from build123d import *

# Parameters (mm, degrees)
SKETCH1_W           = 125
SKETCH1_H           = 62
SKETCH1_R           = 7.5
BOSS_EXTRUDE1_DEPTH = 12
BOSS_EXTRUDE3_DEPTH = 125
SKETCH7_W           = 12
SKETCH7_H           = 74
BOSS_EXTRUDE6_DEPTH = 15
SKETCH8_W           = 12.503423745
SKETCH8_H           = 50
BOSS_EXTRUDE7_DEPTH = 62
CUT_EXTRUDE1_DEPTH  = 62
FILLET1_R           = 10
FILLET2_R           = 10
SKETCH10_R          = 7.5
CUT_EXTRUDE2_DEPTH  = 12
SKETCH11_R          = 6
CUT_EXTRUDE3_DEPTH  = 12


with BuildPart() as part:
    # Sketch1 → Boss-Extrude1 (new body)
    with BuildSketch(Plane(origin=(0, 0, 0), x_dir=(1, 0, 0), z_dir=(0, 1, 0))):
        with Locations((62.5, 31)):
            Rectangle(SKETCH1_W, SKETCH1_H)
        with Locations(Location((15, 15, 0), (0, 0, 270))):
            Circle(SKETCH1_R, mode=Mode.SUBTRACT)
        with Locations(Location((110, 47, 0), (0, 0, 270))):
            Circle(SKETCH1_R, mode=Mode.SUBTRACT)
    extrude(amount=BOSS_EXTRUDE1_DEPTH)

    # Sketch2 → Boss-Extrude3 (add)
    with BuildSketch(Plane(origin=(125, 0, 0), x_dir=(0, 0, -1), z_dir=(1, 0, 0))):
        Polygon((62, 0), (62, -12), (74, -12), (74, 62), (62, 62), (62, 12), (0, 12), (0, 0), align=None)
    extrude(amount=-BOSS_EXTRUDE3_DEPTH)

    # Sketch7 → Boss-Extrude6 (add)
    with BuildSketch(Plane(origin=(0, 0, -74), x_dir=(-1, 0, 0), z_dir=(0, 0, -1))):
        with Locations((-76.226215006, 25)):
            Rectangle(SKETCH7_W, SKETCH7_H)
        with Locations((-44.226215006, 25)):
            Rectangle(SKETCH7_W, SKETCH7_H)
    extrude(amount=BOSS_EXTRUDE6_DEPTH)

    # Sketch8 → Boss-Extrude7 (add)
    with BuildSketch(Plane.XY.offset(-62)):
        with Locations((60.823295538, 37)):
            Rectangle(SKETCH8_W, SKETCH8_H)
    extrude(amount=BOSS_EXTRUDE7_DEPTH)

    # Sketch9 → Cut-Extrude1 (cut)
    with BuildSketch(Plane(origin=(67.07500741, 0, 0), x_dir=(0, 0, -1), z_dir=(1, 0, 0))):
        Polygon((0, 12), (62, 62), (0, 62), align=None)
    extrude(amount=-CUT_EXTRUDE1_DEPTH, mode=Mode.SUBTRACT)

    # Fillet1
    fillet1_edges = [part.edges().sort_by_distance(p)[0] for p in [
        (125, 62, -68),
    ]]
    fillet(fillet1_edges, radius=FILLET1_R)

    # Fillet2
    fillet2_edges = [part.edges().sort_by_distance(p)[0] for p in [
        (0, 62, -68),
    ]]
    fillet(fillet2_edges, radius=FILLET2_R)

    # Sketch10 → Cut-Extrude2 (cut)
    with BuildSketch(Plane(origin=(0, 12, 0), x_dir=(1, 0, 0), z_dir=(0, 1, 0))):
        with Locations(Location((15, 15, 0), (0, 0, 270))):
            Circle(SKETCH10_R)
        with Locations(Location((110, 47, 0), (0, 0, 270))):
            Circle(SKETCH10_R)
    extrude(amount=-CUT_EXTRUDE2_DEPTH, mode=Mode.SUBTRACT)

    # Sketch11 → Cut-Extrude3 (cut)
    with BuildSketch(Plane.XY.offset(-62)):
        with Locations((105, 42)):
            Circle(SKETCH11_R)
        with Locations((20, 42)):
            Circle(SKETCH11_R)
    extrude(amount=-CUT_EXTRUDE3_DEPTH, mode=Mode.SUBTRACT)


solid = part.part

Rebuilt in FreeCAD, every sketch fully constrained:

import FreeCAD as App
import Part
import Sketcher


def edges_at(feature, points):
    """Names of the edges that pass closest to the given points."""
    edges = feature.Shape.Edges
    near = lambda p: min(range(len(edges)), key=lambda i: edges[i].distToShape(Part.Vertex(*p))[0])
    return sorted({f"Edge{near(p) + 1}" for p in points})


def add_polygon(sketch, points):
    """Adds a closed chain of lines whose ends are joined by coincident constraints."""
    first, n = sketch.GeometryCount, len(points)
    for a, b in zip(points, points[1:] + points[:1]):
        sketch.addGeometry(Part.LineSegment(App.Vector(*a, 0), App.Vector(*b, 0)), False)
    for i in range(n):
        sketch.addConstraint(Sketcher.Constraint("Coincident", first + i, 2, first + (i + 1) % n, 1))

doc = App.newDocument("Part")
body = doc.addObject("PartDesign::Body", "Body")

sketch1 = body.newObject("Sketcher::SketchObject", "Sketch")
sketch1.AttachmentSupport = (doc.getObject("XZ_Plane"), [""])
sketch1.MapMode = "FlatFace"
add_polygon(sketch1, [(0, -62), (0, 0), (125, 0), (125, -62)])
sketch1.addGeometry(Part.Circle(App.Vector(15, -15, 0), App.Vector(0, 0, 1), 8), False)
sketch1.addGeometry(Part.Circle(App.Vector(110, -47, 0), App.Vector(0, 0, 1), 8), False)
sketch1.addConstraint([
    Sketcher.Constraint("Vertical", 0),
    Sketcher.Constraint("Horizontal", 1),
    Sketcher.Constraint("Vertical", 2),
    Sketcher.Constraint("Horizontal", 3),
    Sketcher.Constraint("Coincident", 0, 2, -1, 1),
    Sketcher.Constraint("Equal", 4, 5),
    Sketcher.Constraint("Diameter", 4, 15.0),
    Sketcher.Constraint("DistanceX", 1, 1, 1, 2, 125.0),
    Sketcher.Constraint("DistanceY", 0, 1, 0, 2, 62.0),
    Sketcher.Constraint("DistanceX", -1, 1, 4, 3, 15.0),
    Sketcher.Constraint("DistanceY", 4, 3, -1, 1, 15.0),
    Sketcher.Constraint("DistanceX", -1, 1, 5, 3, 110.0),
    Sketcher.Constraint("DistanceY", 5, 3, -1, 1, 47.0),
])
pad1 = body.newObject("PartDesign::Pad", "Pad")
pad1.Profile = sketch1
pad1.Length = 12
pad1.Reversed = True

sketch2 = body.newObject("Sketcher::SketchObject", "Sketch001")
sketch2.AttachmentSupport = (doc.getObject("YZ_Plane"), [""])
sketch2.MapMode = "FlatFace"
sketch2.AttachmentOffset = App.Placement(App.Vector(0, 0, 125), App.Rotation())
add_polygon(sketch2, [(0, -62), (-12, -62), (-12, -74), (62, -74), (62, -62), (12, -62), (12, 0), (0, 0)])
sketch2.addConstraint([
    Sketcher.Constraint("Horizontal", 0),
    Sketcher.Constraint("Vertical", 1),
    Sketcher.Constraint("Horizontal", 2),
    Sketcher.Constraint("Vertical", 3),
    Sketcher.Constraint("Horizontal", 4),
    Sketcher.Constraint("Vertical", 5),
    Sketcher.Constraint("Horizontal", 6),
    Sketcher.Constraint("Vertical", 7),
    Sketcher.Constraint("Coincident", 6, 2, -1, 1),
    Sketcher.Constraint("Symmetric", 0, 2, 4, 2, -2),
    Sketcher.Constraint("Equal", 6, 1),
    Sketcher.Constraint("DistanceX", 0, 2, 0, 1, 12.0),
    Sketcher.Constraint("DistanceX", 2, 1, 2, 2, 74.0),
    Sketcher.Constraint("DistanceY", 5, 1, 5, 2, 62.0),
])
pad2 = body.newObject("PartDesign::Pad", "Pad001")
pad2.Profile = sketch2
pad2.Length = 125
pad2.Reversed = True

sketch3 = body.newObject("Sketcher::SketchObject", "Sketch002")
sketch3.AttachmentSupport = (doc.getObject("XY_Plane"), [""])
sketch3.MapMode = "FlatFace"
sketch3.AttachmentOffset = App.Placement(App.Vector(0, 0, -74), App.Rotation())
add_polygon(sketch3, [(82, 62), (82, -12), (70, -12), (70, 62)])
add_polygon(sketch3, [(50, 62), (50, -12), (38, -12), (38, 62)])
sketch3.addConstraint([
    Sketcher.Constraint("Vertical", 0),
    Sketcher.Constraint("Horizontal", 1),
    Sketcher.Constraint("Vertical", 2),
    Sketcher.Constraint("Horizontal", 3),
    Sketcher.Constraint("Vertical", 4),
    Sketcher.Constraint("Horizontal", 5),
    Sketcher.Constraint("Vertical", 6),
    Sketcher.Constraint("Horizontal", 7),
    Sketcher.Constraint("Horizontal", 1, 2, 4, 2),
    Sketcher.Constraint("Horizontal", 3, 2, 6, 2),
    Sketcher.Constraint("Equal", 3, 5),
    Sketcher.Constraint("DistanceX", 1, 2, 1, 1, 12.0),
    Sketcher.Constraint("DistanceY", 0, 2, 0, 1, 74.0),
    Sketcher.Constraint("DistanceY", 0, 2, -1, 1, 12.0),
    Sketcher.Constraint("DistanceX", 4, 2, 1, 2, 20.0),
    Sketcher.Constraint("DistanceX", -1, 1, 0, 2, 82.226215),
])
pad3 = body.newObject("PartDesign::Pad", "Pad002")
pad3.Profile = sketch3
pad3.Length = 15
pad3.Reversed = True

sketch4 = body.newObject("Sketcher::SketchObject", "Sketch003")
sketch4.AttachmentSupport = (doc.getObject("XY_Plane"), [""])
sketch4.MapMode = "FlatFace"
sketch4.AttachmentOffset = App.Placement(App.Vector(0, 0, -62), App.Rotation())
add_polygon(sketch4, [(55, 62), (55, 12), (67, 12), (67, 62)])
sketch4.addConstraint([
    Sketcher.Constraint("Vertical", 0),
    Sketcher.Constraint("Horizontal", 1),
    Sketcher.Constraint("Vertical", 2),
    Sketcher.Constraint("Horizontal", 3),
    Sketcher.Constraint("DistanceY", 0, 2, 0, 1, 50.0),
    Sketcher.Constraint("DistanceY", -1, 1, 0, 2, 12.0),
    Sketcher.Constraint("DistanceX", 1, 1, 1, 2, 12.503424),
    Sketcher.Constraint("DistanceX", -1, 1, 0, 2, 54.571584),
])
pad4 = body.newObject("PartDesign::Pad", "Pad003")
pad4.Profile = sketch4
pad4.Length = 62

sketch5 = body.newObject("Sketcher::SketchObject", "Sketch004")
sketch5.AttachmentSupport = (doc.getObject("YZ_Plane"), [""])
sketch5.MapMode = "FlatFace"
sketch5.AttachmentOffset = App.Placement(App.Vector(0, 0, 67.075007), App.Rotation())
add_polygon(sketch5, [(12, 0), (62, -62), (62, 0)])
sketch5.addConstraint([
    Sketcher.Constraint("Vertical", 1),
    Sketcher.Constraint("Horizontal", 2),
    Sketcher.Constraint("PointOnObject", 1, 2, -1),
    Sketcher.Constraint("DistanceX", 2, 2, 2, 1, 50.0),
    Sketcher.Constraint("DistanceY", 1, 1, 1, 2, 62.0),
    Sketcher.Constraint("DistanceX", -1, 1, 0, 2, 62.0),
])
pocket1 = body.newObject("PartDesign::Pocket", "Pocket")
pocket1.Profile = sketch5
pocket1.Length = 62
doc.recompute()

fillet = body.newObject("PartDesign::Fillet", "Fillet")
fillet.Base = (pocket1, edges_at(pocket1, [(125, 62, -68)]))
fillet.Radius = 10
doc.recompute()

fillet2 = body.newObject("PartDesign::Fillet", "Fillet001")
fillet2.Base = (fillet, edges_at(fillet, [(0, 62, -68)]))
fillet2.Radius = 10

sketch6 = body.newObject("Sketcher::SketchObject", "Sketch005")
sketch6.AttachmentSupport = (doc.getObject("XZ_Plane"), [""])
sketch6.MapMode = "FlatFace"
sketch6.AttachmentOffset = App.Placement(App.Vector(0, 0, -12), App.Rotation())
sketch6.addGeometry([
    Part.Circle(App.Vector(15, -15, 0), App.Vector(0, 0, 1), 8),
    Part.Circle(App.Vector(110, -47, 0), App.Vector(0, 0, 1), 8),
], False)
sketch6.addConstraint([
    Sketcher.Constraint("Equal", 0, 1),
    Sketcher.Constraint("Diameter", 0, 15.0),
    Sketcher.Constraint("DistanceX", -1, 1, 0, 3, 15.0),
    Sketcher.Constraint("DistanceY", 0, 3, -1, 1, 15.0),
    Sketcher.Constraint("DistanceX", -1, 1, 1, 3, 110.0),
    Sketcher.Constraint("DistanceY", 1, 3, -1, 1, 47.0),
])
pocket2 = body.newObject("PartDesign::Pocket", "Pocket001")
pocket2.Profile = sketch6
pocket2.Length = 12
pocket2.Reversed = True

sketch7 = body.newObject("Sketcher::SketchObject", "Sketch006")
sketch7.AttachmentSupport = (doc.getObject("XY_Plane"), [""])
sketch7.MapMode = "FlatFace"
sketch7.AttachmentOffset = App.Placement(App.Vector(0, 0, -62), App.Rotation())
sketch7.addGeometry([
    Part.Circle(App.Vector(105, 42, 0), App.Vector(0, 0, 1), 6),
    Part.Circle(App.Vector(20, 42, 0), App.Vector(0, 0, 1), 6),
], False)
sketch7.addConstraint([
    Sketcher.Constraint("Equal", 0, 1),
    Sketcher.Constraint("Horizontal", 0, 3, 1, 3),
    Sketcher.Constraint("Diameter", 0, 12.0),
    Sketcher.Constraint("DistanceX", -1, 1, 0, 3, 105.0),
    Sketcher.Constraint("DistanceY", -1, 1, 0, 3, 42.0),
    Sketcher.Constraint("DistanceX", -1, 1, 1, 3, 20.0),
])
pocket3 = body.newObject("PartDesign::Pocket", "Pocket002")
pocket3.Profile = sketch7
pocket3.Length = 12

doc.recompute()
